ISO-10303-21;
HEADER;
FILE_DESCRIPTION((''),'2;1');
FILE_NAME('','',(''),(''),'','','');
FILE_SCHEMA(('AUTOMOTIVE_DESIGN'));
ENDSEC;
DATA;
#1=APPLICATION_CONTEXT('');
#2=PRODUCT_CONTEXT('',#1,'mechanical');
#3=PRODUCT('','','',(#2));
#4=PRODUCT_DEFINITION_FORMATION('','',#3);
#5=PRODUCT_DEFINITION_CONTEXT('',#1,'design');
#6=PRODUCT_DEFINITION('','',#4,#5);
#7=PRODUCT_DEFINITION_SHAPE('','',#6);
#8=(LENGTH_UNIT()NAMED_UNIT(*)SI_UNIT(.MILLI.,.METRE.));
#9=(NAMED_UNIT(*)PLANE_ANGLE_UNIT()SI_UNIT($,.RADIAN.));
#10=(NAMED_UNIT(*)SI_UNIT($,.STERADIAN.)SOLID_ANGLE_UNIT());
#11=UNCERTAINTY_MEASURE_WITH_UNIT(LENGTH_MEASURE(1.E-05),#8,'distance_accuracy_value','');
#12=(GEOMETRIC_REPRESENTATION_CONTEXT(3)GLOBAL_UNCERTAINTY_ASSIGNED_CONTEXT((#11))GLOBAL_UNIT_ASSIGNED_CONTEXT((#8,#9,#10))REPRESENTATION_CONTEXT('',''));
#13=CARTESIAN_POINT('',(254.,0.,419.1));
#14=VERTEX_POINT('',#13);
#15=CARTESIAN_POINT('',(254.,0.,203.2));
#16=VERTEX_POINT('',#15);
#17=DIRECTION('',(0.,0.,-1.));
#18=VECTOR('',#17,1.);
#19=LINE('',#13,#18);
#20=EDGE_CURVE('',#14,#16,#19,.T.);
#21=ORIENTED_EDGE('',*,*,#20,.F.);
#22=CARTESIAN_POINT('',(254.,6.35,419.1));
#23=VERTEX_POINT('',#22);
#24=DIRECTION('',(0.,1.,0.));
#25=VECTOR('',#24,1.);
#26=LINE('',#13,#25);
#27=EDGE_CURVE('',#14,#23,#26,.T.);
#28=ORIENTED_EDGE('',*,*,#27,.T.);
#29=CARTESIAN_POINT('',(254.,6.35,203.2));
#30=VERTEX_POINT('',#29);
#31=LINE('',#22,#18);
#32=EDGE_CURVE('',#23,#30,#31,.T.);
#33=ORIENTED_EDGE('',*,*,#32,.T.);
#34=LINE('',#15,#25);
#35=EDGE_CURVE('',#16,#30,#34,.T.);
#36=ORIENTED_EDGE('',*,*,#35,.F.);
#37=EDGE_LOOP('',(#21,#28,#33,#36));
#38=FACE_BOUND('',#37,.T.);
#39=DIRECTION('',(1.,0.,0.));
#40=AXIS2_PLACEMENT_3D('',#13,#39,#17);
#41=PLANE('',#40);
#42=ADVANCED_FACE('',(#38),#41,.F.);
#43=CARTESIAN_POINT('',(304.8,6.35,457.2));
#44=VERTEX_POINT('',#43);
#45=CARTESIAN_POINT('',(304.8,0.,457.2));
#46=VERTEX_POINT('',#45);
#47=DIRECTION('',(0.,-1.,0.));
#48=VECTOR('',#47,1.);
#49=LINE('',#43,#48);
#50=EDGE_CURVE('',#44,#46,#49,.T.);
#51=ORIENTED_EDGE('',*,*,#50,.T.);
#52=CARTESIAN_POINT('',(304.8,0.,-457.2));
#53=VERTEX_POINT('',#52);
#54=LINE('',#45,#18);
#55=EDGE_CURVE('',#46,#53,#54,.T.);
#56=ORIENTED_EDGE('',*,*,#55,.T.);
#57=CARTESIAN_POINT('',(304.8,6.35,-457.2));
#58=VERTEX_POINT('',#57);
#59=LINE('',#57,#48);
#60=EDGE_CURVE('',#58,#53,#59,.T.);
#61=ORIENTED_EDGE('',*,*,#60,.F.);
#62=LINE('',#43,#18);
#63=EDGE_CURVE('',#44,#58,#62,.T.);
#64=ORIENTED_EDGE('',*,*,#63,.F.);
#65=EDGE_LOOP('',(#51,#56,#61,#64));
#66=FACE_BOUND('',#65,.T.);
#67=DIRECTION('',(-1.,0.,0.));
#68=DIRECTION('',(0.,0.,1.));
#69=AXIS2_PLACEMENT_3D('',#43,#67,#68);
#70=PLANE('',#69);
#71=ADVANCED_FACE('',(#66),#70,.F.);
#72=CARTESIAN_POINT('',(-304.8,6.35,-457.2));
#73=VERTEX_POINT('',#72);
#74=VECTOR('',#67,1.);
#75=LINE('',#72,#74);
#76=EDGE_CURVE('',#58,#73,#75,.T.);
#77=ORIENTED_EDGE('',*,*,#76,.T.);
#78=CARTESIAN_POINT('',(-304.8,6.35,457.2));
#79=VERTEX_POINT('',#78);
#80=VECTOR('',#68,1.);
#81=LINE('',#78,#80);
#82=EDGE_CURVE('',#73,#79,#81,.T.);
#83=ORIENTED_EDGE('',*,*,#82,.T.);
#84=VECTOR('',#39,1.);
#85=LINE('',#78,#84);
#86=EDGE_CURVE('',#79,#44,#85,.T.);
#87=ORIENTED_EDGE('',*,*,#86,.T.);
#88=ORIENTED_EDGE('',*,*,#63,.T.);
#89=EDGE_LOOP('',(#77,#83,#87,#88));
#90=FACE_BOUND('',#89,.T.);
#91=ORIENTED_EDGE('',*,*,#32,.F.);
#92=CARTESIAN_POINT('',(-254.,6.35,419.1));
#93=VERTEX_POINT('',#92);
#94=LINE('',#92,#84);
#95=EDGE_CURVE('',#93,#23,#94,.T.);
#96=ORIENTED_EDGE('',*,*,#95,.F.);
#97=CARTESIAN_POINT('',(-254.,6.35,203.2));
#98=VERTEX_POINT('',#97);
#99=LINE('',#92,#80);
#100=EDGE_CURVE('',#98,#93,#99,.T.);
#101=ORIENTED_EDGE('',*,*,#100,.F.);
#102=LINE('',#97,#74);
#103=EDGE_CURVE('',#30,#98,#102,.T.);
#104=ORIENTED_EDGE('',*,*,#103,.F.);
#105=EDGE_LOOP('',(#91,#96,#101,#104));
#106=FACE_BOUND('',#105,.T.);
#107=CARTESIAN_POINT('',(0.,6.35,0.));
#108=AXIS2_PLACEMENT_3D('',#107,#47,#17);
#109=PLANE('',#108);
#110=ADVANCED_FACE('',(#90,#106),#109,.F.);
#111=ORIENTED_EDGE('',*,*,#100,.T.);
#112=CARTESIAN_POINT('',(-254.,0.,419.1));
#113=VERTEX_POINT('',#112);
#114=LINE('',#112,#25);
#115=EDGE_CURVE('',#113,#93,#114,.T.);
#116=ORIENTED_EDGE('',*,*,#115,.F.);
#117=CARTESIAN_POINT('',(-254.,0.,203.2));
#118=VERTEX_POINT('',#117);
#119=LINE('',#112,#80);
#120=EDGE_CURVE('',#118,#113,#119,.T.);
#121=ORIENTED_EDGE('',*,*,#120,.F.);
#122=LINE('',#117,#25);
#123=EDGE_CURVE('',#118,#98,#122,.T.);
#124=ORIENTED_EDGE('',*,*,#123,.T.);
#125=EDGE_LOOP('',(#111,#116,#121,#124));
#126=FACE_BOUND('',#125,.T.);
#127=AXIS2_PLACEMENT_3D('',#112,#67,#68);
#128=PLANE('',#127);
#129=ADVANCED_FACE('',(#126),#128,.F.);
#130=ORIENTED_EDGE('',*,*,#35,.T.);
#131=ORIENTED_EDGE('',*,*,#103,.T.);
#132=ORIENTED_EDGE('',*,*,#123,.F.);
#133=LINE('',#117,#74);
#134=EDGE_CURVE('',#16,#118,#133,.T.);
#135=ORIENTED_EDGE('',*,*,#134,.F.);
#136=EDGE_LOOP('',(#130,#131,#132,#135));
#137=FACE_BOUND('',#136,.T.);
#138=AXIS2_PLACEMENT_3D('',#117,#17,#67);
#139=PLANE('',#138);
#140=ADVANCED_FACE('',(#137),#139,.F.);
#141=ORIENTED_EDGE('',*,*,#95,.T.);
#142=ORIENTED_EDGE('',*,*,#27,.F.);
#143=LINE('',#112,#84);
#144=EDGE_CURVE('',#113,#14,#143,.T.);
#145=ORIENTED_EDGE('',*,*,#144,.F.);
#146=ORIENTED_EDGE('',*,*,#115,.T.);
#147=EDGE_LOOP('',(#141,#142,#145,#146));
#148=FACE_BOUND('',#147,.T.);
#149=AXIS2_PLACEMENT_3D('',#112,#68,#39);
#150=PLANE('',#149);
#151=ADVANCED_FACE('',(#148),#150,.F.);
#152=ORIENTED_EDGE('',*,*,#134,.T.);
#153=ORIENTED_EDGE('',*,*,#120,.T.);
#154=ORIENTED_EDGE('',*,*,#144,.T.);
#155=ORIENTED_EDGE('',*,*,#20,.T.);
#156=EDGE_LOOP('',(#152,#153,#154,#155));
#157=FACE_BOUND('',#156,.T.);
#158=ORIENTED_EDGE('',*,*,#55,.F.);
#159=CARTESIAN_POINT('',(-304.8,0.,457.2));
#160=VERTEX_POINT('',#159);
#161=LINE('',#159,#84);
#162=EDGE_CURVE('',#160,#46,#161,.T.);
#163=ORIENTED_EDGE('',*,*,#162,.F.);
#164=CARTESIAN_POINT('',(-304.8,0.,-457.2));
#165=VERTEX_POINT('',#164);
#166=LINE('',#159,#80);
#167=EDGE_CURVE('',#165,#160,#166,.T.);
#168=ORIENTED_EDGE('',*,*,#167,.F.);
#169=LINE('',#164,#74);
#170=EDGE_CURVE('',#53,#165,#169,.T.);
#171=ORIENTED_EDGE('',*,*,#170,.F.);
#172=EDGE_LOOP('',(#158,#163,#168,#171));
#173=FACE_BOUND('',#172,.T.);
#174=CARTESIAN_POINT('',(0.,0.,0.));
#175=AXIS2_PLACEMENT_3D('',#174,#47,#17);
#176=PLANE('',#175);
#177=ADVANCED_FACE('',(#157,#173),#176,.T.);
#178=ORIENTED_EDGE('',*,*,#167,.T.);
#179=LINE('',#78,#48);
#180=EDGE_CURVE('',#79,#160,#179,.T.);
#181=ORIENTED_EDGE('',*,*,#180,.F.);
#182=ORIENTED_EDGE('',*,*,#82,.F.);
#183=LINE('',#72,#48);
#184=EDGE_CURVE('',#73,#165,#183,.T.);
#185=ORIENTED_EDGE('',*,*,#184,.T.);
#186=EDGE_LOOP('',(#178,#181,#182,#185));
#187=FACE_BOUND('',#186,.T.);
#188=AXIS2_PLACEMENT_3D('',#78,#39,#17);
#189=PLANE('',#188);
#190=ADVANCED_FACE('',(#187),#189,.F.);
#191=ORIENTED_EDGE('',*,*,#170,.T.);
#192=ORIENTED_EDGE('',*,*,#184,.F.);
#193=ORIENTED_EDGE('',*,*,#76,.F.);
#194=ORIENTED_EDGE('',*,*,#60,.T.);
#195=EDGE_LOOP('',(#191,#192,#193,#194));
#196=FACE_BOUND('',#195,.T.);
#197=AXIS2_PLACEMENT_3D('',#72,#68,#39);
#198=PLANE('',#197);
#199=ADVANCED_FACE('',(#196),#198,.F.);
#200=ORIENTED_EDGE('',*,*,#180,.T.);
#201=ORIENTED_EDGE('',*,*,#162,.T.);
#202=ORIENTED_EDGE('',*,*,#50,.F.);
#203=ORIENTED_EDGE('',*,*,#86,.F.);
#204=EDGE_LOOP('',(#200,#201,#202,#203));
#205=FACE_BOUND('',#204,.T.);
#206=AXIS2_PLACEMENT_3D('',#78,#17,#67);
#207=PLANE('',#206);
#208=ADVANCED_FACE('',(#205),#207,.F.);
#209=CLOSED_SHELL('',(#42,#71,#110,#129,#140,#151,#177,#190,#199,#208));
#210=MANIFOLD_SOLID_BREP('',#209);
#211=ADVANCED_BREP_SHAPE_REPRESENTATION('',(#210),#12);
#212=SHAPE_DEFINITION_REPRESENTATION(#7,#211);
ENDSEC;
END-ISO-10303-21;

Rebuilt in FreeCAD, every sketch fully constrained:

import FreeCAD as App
import Part
import Sketcher

V = App.Vector
Q = App.Units.Quantity

doc = App.newDocument("Part")
params = doc.addObject("Spreadsheet::Sheet", "Params")
for row, (alias, value) in enumerate([
    ("sketch1_width", "24 in"),
    ("sketch1_height", "36 in"),
    ("pad1_length", "0.25 in"),
    ("sketch2_width", "20 in"),
    ("sketch2_height", "8.5 in"),
], start=1):
    params.set(f"A{row}", alias)
    params.set(f"B{row}", "=" + value)
    params.setAlias(f"B{row}", alias)

body = doc.addObject("PartDesign::Body", "Body")

sketch1 = body.newObject("Sketcher::SketchObject", "Sketch")
sketch1.AttachmentSupport = (doc.getObject("XZ_Plane"), [""])
sketch1.MapMode = "FlatFace"
sketch1.addGeometry([
    Part.LineSegment(V(-305, -457, 0), V(-305, 457, 0)),
    Part.LineSegment(V(-305, 457, 0), V(305, 457, 0)),
    Part.LineSegment(V(305, 457, 0), V(305, -457, 0)),
    Part.LineSegment(V(305, -457, 0), V(-305, -457, 0)),
], False)
sketch1.addConstraint([
    Sketcher.Constraint("Coincident", 0, 2, 1, 1),
    Sketcher.Constraint("Coincident", 1, 2, 2, 1),
    Sketcher.Constraint("Coincident", 2, 2, 3, 1),
    Sketcher.Constraint("Coincident", 3, 2, 0, 1),
    Sketcher.Constraint("Vertical", 0),
    Sketcher.Constraint("Horizontal", 1),
    Sketcher.Constraint("Vertical", 2),
    Sketcher.Constraint("Horizontal", 3),
    Sketcher.Constraint("Symmetric", 0, 2, 2, 2, -1, 1),
    Sketcher.Constraint("DistanceX", 1, 1, 1, 2, Q("24 in")),
    Sketcher.Constraint("DistanceY", 0, 1, 0, 2, Q("36 in")),
])
sketch1.setExpression("Constraints[9]", "Params.sketch1_width")
sketch1.setExpression("Constraints[10]", "Params.sketch1_height")
pad1 = body.newObject("PartDesign::Pad", "Pad")
pad1.Profile = sketch1
pad1.setExpression("Length", "Params.pad1_length")
pad1.Reversed = True

sketch2 = body.newObject("Sketcher::SketchObject", "Sketch001")
sketch2.AttachmentSupport = (doc.getObject("XZ_Plane"), [""])
sketch2.MapMode = "FlatFace"
sketch2.AttachmentOffset = App.Placement(V(0, 0, -0.25 * 25.4), App.Rotation())
sketch2.addGeometry([
    Part.LineSegment(V(-254, 203, 0), V(-254, 419, 0)),
    Part.LineSegment(V(-254, 419, 0), V(254, 419, 0)),
    Part.LineSegment(V(254, 419, 0), V(254, 203, 0)),
    Part.LineSegment(V(254, 203, 0), V(-254, 203, 0)),
], False)
sketch2.addConstraint([
    Sketcher.Constraint("Coincident", 0, 2, 1, 1),
    Sketcher.Constraint("Coincident", 1, 2, 2, 1),
    Sketcher.Constraint("Coincident", 2, 2, 3, 1),
    Sketcher.Constraint("Coincident", 3, 2, 0, 1),
    Sketcher.Constraint("Vertical", 0),
    Sketcher.Constraint("Horizontal", 1),
    Sketcher.Constraint("Vertical", 2),
    Sketcher.Constraint("Horizontal", 3),
    Sketcher.Constraint("DistanceX", 1, 1, 1, 2, Q("20 in")),
    Sketcher.Constraint("DistanceY", 0, 1, 0, 2, Q("8.5 in")),
    Sketcher.Constraint("DistanceX", 0, 2, -1, 1, Q("10 in")),
    Sketcher.Constraint("DistanceY", -1, 1, 2, 2, Q("8 in")),
])
sketch2.setExpression("Constraints[8]", "Params.sketch2_width")
sketch2.setExpression("Constraints[9]", "Params.sketch2_height")
pocket1 = body.newObject("PartDesign::Pocket", "Pocket")
pocket1.Profile = sketch2
pocket1.Type = "ThroughAll"
pocket1.Reversed = True

doc.recompute()
